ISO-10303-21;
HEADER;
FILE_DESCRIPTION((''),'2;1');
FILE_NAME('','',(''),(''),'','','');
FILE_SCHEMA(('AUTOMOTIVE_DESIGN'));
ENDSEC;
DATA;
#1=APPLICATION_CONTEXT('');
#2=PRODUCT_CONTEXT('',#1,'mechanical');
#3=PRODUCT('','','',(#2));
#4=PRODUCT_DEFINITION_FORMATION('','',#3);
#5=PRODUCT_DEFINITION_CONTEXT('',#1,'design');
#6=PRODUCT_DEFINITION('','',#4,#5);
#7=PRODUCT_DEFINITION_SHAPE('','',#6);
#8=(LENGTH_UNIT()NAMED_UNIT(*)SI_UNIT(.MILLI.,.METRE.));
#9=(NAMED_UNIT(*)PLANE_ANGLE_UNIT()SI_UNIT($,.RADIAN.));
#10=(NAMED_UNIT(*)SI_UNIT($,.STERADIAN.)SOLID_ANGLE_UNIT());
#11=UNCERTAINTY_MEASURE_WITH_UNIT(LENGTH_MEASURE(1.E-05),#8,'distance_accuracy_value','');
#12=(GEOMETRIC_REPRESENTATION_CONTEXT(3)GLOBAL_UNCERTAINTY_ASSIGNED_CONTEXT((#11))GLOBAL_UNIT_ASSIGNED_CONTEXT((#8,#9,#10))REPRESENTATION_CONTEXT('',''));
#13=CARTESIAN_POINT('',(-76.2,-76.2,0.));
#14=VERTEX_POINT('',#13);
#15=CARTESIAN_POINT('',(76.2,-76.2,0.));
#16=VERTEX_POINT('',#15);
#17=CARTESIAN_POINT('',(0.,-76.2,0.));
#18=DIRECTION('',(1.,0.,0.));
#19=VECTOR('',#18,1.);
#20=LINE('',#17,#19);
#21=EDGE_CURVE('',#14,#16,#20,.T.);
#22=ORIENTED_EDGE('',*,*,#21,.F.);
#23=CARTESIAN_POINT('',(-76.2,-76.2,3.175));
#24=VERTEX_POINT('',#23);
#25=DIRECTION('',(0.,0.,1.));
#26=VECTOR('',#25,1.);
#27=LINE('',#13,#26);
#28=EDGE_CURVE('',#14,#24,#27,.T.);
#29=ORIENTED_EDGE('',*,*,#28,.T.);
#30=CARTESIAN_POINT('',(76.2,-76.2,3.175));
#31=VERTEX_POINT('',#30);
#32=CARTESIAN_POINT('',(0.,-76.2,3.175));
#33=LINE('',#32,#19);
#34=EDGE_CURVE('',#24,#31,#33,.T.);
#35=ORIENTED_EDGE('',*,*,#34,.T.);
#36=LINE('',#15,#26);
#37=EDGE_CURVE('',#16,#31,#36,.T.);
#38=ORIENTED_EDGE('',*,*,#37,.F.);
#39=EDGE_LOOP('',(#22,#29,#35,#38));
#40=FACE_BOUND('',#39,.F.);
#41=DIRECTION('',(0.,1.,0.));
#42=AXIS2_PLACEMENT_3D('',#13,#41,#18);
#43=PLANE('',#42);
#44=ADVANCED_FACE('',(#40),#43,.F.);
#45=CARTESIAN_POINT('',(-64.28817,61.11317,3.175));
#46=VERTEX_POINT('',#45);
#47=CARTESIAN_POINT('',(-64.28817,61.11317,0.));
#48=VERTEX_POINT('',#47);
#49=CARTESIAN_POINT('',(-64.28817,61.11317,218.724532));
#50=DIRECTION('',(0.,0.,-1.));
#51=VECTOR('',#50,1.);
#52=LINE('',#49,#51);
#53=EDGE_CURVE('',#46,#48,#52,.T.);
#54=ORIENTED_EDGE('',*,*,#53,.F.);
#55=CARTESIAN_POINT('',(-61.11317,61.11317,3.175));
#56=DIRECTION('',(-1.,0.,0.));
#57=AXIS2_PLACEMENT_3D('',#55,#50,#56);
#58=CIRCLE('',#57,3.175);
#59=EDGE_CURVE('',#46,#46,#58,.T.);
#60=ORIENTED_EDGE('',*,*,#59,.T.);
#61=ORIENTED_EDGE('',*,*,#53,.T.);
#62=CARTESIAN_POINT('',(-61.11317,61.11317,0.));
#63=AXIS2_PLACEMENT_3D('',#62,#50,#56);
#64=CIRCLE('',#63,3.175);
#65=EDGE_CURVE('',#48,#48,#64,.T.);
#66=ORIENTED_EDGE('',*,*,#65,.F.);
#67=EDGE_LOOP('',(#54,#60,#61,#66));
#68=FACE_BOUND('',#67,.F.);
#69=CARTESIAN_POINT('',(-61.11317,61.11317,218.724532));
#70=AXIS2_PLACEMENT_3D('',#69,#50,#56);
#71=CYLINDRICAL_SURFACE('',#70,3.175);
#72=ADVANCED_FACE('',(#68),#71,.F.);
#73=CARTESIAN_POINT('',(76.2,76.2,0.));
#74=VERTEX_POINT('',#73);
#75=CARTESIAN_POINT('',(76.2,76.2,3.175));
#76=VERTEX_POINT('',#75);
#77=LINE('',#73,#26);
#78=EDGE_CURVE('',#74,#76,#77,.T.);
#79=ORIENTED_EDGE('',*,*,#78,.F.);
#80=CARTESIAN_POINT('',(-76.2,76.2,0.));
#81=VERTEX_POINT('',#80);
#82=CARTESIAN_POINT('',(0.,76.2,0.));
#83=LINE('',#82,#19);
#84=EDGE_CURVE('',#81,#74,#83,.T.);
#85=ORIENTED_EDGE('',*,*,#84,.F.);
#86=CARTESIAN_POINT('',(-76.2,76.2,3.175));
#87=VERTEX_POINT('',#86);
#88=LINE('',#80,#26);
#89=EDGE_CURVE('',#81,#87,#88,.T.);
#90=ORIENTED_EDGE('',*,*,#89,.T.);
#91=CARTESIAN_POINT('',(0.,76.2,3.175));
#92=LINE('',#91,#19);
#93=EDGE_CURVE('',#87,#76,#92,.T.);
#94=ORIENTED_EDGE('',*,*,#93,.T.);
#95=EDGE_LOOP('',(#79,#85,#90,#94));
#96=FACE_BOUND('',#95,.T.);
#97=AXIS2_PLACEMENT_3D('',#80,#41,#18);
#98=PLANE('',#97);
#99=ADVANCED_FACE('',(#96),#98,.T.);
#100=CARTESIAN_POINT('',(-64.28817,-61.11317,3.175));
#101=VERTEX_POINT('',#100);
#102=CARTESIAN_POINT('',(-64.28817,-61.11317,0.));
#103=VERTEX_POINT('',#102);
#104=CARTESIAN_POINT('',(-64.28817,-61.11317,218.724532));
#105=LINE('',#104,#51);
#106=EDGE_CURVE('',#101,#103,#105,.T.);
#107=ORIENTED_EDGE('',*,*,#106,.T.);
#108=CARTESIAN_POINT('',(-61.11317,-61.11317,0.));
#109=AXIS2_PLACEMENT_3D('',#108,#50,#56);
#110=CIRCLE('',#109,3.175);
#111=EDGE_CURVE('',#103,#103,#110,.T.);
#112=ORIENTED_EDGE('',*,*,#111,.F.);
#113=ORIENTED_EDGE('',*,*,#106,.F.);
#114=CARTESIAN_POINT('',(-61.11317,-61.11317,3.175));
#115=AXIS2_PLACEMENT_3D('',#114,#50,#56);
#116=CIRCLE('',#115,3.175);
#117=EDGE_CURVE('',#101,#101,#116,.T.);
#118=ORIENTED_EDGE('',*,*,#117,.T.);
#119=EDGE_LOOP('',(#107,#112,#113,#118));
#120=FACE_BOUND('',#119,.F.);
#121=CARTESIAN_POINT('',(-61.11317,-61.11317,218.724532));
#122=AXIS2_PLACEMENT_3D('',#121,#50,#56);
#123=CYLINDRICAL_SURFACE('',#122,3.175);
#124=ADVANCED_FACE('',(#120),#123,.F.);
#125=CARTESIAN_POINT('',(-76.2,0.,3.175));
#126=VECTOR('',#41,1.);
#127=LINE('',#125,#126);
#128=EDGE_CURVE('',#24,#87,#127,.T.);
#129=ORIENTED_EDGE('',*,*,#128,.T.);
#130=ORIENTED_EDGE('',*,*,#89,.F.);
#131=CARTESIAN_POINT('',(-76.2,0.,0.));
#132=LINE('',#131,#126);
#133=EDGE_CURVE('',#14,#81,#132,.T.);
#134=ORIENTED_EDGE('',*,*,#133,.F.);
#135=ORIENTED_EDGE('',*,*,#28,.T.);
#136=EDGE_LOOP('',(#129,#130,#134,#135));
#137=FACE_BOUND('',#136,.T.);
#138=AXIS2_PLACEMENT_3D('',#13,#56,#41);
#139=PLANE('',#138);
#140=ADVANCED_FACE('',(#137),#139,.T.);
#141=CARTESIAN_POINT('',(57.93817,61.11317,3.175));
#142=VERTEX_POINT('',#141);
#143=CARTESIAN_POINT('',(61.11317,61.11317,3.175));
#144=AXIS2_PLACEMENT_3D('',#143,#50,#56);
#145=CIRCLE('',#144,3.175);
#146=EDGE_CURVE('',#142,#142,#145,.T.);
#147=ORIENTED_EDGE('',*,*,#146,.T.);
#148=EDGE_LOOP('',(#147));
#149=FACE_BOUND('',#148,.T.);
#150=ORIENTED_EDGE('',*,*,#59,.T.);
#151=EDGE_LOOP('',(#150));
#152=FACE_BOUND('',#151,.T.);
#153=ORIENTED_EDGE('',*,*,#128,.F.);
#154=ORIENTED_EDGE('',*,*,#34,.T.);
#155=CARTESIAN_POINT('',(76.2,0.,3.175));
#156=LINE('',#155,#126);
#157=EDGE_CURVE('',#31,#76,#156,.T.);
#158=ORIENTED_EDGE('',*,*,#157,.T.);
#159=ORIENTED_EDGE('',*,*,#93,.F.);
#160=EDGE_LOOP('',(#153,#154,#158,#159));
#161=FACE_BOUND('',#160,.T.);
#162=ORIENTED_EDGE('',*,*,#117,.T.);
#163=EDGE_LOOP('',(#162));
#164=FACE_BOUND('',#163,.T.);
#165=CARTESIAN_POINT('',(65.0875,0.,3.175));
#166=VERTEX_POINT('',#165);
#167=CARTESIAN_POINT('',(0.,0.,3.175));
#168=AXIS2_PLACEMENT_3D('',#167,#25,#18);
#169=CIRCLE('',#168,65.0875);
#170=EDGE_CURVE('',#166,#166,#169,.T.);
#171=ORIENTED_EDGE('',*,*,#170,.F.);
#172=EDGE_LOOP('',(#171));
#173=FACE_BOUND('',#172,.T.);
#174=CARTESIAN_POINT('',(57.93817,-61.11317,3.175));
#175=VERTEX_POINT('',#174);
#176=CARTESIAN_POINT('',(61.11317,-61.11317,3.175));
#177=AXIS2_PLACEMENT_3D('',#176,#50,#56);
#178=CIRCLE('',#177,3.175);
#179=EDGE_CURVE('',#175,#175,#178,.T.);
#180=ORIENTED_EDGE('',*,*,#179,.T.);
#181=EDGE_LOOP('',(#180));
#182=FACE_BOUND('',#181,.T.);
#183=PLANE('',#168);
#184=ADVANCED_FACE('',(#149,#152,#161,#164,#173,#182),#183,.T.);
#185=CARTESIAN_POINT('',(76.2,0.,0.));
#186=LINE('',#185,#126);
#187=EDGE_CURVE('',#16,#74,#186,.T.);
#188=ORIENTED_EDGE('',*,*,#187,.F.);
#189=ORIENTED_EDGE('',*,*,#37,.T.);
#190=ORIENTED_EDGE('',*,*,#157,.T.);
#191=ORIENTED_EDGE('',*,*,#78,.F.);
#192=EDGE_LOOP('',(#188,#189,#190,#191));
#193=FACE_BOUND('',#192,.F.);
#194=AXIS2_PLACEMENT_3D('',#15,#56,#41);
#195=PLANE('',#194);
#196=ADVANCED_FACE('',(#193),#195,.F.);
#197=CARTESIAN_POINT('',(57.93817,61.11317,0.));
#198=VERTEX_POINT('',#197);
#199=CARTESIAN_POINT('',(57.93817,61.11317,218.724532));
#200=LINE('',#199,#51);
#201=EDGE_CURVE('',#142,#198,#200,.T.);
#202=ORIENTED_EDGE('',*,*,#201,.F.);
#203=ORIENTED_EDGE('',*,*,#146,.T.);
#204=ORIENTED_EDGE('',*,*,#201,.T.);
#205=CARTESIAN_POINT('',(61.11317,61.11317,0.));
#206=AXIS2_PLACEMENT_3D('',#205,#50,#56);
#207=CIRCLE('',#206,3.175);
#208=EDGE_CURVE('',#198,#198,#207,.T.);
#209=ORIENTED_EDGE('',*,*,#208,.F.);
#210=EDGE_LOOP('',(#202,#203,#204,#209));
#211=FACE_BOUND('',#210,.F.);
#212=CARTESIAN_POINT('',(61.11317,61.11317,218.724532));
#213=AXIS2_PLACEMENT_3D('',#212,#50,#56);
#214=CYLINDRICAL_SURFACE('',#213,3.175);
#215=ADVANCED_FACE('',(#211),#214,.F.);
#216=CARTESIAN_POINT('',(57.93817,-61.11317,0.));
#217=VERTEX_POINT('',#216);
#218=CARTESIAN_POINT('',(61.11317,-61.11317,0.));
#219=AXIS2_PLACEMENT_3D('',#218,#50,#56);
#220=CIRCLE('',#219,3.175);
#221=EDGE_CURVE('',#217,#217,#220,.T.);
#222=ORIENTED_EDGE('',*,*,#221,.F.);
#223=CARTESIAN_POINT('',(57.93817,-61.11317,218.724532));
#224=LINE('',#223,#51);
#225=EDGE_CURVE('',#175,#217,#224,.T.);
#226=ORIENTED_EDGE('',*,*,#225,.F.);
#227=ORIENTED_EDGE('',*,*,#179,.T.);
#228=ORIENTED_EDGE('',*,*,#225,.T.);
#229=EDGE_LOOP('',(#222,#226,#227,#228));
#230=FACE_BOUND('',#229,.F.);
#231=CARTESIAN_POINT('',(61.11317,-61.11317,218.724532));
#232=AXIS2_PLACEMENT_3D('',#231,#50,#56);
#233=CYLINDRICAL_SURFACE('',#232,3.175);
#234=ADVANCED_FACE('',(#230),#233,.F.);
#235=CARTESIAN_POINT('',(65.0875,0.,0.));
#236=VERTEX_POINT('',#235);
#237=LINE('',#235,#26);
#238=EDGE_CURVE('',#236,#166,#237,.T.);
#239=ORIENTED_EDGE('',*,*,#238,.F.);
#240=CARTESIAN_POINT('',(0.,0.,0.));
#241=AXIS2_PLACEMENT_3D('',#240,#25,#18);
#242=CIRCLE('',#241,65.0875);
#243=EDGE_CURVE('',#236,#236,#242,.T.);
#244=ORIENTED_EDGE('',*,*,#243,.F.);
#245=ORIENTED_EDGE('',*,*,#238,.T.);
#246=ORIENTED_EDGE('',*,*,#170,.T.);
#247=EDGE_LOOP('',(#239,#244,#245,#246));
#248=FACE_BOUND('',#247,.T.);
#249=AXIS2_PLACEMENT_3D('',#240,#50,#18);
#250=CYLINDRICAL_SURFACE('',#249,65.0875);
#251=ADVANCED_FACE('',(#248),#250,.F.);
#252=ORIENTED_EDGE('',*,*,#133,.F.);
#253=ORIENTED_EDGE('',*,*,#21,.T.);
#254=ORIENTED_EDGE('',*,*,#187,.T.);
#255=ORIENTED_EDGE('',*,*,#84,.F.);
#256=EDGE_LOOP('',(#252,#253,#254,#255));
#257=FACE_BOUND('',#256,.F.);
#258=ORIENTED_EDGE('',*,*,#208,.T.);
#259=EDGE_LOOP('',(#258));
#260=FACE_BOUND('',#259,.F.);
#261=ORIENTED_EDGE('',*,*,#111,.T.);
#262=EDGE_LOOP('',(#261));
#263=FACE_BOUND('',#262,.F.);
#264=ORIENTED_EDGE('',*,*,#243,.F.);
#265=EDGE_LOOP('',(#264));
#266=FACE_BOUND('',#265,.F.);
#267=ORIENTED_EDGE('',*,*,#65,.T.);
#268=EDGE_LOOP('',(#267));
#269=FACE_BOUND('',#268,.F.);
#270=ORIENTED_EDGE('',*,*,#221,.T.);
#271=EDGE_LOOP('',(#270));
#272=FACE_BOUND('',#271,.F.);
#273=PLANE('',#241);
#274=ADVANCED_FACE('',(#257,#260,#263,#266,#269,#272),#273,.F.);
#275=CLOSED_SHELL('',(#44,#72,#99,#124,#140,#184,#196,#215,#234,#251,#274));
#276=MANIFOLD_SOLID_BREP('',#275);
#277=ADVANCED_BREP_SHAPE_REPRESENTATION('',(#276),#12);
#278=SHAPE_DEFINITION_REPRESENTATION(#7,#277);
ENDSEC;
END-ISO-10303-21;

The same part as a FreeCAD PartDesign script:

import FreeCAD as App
import Part
import Sketcher
from FreeCAD import Vector
Q = App.Units.Quantity

doc = App.newDocument("Part")
body = doc.addObject("PartDesign::Body", "Body")

# Sketch on XY plane
sketch1 = body.newObject("Sketcher::SketchObject", "Sketch")
sketch1.AttachmentSupport = (doc.getObject("XY_Plane"), [""])
sketch1.MapMode = "FlatFace"
sketch1.addGeometry([
    Part.LineSegment(Vector(-76, 76, 0), Vector(-76, -76, 0)),  # 0
    Part.LineSegment(Vector(-76, -76, 0), Vector(76, -76, 0)),  # 1
    Part.LineSegment(Vector(76, -76, 0), Vector(76, 76, 0)),  # 2
    Part.LineSegment(Vector(76, 76, 0), Vector(-76, 76, 0)),  # 3
    Part.Circle(Vector(0, 0, 0), Vector(0, 0, 1), 65),  # 4
], False)
sketch1.addConstraint([
    Sketcher.Constraint("Coincident", 0, 2, 1, 1),
    Sketcher.Constraint("Coincident", 1, 2, 2, 1),
    Sketcher.Constraint("Coincident", 2, 2, 3, 1),
    Sketcher.Constraint("Coincident", 3, 2, 0, 1),
    Sketcher.Constraint("Vertical", 0),
    Sketcher.Constraint("Horizontal", 1),
    Sketcher.Constraint("Vertical", 2),
    Sketcher.Constraint("Horizontal", 3),
    Sketcher.Constraint("Coincident", 4, 3, -1, 1),
    Sketcher.Constraint("Symmetric", 0, 2, 2, 2, -1, 1),
    Sketcher.Constraint("Equal", 3, 0),
    Sketcher.Constraint("DistanceX", 1, 1, 1, 2, Q("6 in")),
    Sketcher.Constraint("Diameter", 4, Q("5.125 in")),
])
pad1 = body.newObject("PartDesign::Pad", "Pad")
pad1.Profile = sketch1
pad1.Length = Q("0.125 in")

# Sketch on XY plane
sketch2 = body.newObject("Sketcher::SketchObject", "Sketch001")
sketch2.AttachmentSupport = (doc.getObject("XY_Plane"), [""])
sketch2.MapMode = "FlatFace"
sketch2.AttachmentOffset = App.Placement(Vector(0, 0, 0.125 * 25.4), App.Rotation())
sketch2.addGeometry([
    Part.Circle(Vector(-61.1, -61.1, 0), Vector(0, 0, 1), 3.2),
    Part.Circle(Vector(61.1, -61.1, 0), Vector(0, 0, 1), 3.2),
    Part.Circle(Vector(61.1, 61.1, 0), Vector(0, 0, 1), 3.2),
    Part.Circle(Vector(-61.1, 61.1, 0), Vector(0, 0, 1), 3.2),
], False)
sketch2.addConstraint([
    Sketcher.Constraint("Equal", 0, 1),
    Sketcher.Constraint("Equal", 1, 2),
    Sketcher.Constraint("Equal", 2, 3),
    Sketcher.Constraint("Symmetric", 0, 3, 2, 3, -1, 1),
    Sketcher.Constraint("Symmetric", 1, 3, 3, 3, -1, 1),
    Sketcher.Constraint("Symmetric", 0, 3, 1, 3, -2),
    Sketcher.Constraint("Diameter", 0, Q("0.25 in")),
    Sketcher.Constraint("DistanceX", 0, 3, -1, 1, 61.11317),
    Sketcher.Constraint("DistanceY", 0, 3, -1, 1, 61.11317),
])
doc.recompute()
hole = body.newObject("PartDesign::Hole", "Hole")
hole.Profile = sketch2
hole.ThreadType = "None"
hole.Diameter = Q("0.25 in")
hole.DepthType = "ThroughAll"

doc.recompute()
